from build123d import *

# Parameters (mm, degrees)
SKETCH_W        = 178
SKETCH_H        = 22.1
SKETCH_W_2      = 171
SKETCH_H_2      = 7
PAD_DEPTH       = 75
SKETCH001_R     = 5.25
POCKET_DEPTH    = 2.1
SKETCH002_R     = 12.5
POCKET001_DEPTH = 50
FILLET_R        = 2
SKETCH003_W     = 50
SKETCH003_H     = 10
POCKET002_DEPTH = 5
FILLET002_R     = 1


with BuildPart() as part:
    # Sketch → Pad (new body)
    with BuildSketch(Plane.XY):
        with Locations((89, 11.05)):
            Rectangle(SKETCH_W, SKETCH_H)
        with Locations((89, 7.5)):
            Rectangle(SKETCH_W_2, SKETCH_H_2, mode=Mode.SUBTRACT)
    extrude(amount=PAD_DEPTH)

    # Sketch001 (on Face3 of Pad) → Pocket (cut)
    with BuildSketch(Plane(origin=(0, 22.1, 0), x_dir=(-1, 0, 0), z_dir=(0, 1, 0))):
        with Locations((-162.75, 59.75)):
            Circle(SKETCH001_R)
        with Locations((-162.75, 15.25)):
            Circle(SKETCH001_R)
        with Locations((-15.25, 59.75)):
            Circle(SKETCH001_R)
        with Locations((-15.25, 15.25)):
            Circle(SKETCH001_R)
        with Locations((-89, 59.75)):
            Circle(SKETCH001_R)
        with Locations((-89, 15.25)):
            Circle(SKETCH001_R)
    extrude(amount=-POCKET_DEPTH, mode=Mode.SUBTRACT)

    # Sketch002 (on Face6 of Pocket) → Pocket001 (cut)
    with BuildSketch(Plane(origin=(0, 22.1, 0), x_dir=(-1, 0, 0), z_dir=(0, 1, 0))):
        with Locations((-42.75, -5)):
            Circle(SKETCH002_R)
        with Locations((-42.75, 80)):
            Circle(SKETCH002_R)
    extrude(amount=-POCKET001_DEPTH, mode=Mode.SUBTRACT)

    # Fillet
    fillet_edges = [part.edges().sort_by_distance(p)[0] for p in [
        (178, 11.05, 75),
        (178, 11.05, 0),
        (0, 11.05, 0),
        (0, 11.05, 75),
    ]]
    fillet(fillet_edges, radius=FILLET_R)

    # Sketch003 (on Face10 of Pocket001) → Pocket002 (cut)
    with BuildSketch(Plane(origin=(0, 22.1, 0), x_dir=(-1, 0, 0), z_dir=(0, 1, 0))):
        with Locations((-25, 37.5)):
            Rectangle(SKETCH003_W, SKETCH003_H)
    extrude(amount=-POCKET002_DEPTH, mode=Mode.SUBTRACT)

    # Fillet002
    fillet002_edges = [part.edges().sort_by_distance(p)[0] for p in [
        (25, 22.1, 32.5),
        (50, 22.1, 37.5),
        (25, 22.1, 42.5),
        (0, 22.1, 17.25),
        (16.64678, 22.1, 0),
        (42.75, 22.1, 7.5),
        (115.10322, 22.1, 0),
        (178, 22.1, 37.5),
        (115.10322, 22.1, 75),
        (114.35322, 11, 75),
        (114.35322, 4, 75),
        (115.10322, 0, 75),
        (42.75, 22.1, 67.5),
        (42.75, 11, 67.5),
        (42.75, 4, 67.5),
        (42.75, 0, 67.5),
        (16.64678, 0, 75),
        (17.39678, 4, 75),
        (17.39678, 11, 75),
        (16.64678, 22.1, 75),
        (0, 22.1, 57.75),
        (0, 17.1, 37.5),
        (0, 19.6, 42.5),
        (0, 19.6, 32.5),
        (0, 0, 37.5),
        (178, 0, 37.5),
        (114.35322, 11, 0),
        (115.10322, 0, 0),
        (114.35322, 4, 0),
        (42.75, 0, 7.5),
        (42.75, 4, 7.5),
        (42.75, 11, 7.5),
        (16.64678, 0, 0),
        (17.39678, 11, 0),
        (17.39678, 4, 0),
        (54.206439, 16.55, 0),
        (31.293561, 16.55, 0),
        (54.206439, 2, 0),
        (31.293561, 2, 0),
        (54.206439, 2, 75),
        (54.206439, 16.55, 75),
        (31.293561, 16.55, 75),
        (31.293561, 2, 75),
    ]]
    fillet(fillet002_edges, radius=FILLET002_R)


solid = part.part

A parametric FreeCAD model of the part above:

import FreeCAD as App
import Part
import Sketcher

V = App.Vector


def edges_at(feature, points):
    """Names of the edges that pass closest to the given points."""
    edges = feature.Shape.Edges
    near = lambda p: min(range(len(edges)), key=lambda i: edges[i].distToShape(Part.Vertex(*p))[0])
    return sorted({f"Edge{near(p) + 1}" for p in points})

doc = App.newDocument("Part")
body = doc.addObject("PartDesign::Body", "Body")

sketch1 = doc.addObject("Sketcher::SketchObject", "Sketch")
body.addObject(sketch1)
sketch1.AttachmentSupport = (doc.XY_Plane, [""])
sketch1.MapMode = "FlatFace"
sketch1.addGeometry(Part.LineSegment(V(0, 22, 0), V(0, 0, 0)), False)
sketch1.addGeometry(Part.LineSegment(V(0, 0, 0), V(178, 0, 0)), False)
sketch1.addGeometry(Part.LineSegment(V(178, 0, 0), V(178, 22, 0)), False)
sketch1.addGeometry(Part.LineSegment(V(178, 22, 0), V(0, 22, 0)), False)
sketch1.addGeometry(Part.LineSegment(V(174, 4, 0), V(4, 4, 0)), False)
sketch1.addGeometry(Part.LineSegment(V(4, 4, 0), V(4, 11, 0)), False)
sketch1.addGeometry(Part.LineSegment(V(4, 11, 0), V(174, 11, 0)), False)
sketch1.addGeometry(Part.LineSegment(V(174, 11, 0), V(174, 4, 0)), False)
sketch1.addConstraint(Sketcher.Constraint("Coincident", 0, 2, 1, 1))
sketch1.addConstraint(Sketcher.Constraint("Coincident", 1, 2, 2, 1))
sketch1.addConstraint(Sketcher.Constraint("Coincident", 2, 2, 3, 1))
sketch1.addConstraint(Sketcher.Constraint("Coincident", 3, 2, 0, 1))
sketch1.addConstraint(Sketcher.Constraint("Coincident", 4, 2, 5, 1))
sketch1.addConstraint(Sketcher.Constraint("Coincident", 5, 2, 6, 1))
sketch1.addConstraint(Sketcher.Constraint("Coincident", 6, 2, 7, 1))
sketch1.addConstraint(Sketcher.Constraint("Coincident", 7, 2, 4, 1))
sketch1.addConstraint(Sketcher.Constraint("Vertical", 0))
sketch1.addConstraint(Sketcher.Constraint("Horizontal", 1))
sketch1.addConstraint(Sketcher.Constraint("Vertical", 2))
sketch1.addConstraint(Sketcher.Constraint("Horizontal", 3))
sketch1.addConstraint(Sketcher.Constraint("Horizontal", 4))
sketch1.addConstraint(Sketcher.Constraint("Vertical", 5))
sketch1.addConstraint(Sketcher.Constraint("Horizontal", 6))
sketch1.addConstraint(Sketcher.Constraint("Vertical", 7))
sketch1.addConstraint(Sketcher.Constraint("Coincident", 0, 2, -1, 1))
sketch1.addConstraint(Sketcher.Constraint("DistanceX", 1, 1, 1, 2, 178.0))
sketch1.addConstraint(Sketcher.Constraint("DistanceX", 4, 2, 4, 1, 171.0))
sketch1.addConstraint(Sketcher.Constraint("DistanceY", 5, 1, 5, 2, 7.0))
sketch1.addConstraint(Sketcher.Constraint("DistanceY", 0, 2, 0, 1, 22.1))
sketch1.addConstraint(Sketcher.Constraint("DistanceY", -1, 1, 4, 2, 4.0))
sketch1.addConstraint(Sketcher.Constraint("DistanceX", -1, 1, 4, 2, 3.5))
pad1 = doc.addObject("PartDesign::Pad", "Pad")
body.addObject(pad1)
pad1.Profile = sketch1
pad1.Length = 75

sketch2 = doc.addObject("Sketcher::SketchObject", "Sketch001")
body.addObject(sketch2)
sketch2.AttachmentSupport = (doc.XZ_Plane, [""])
sketch2.MapMode = "FlatFace"
sketch2.AttachmentOffset = App.Placement(V(0, 0, -22.1), App.Rotation())
sketch2.addGeometry(Part.Circle(V(163, 60, 0), V(0, 0, 1), 5), False)
sketch2.addGeometry(Part.Circle(V(163, 15, 0), V(0, 0, 1), 5), False)
sketch2.addGeometry(Part.Circle(V(15, 60, 0), V(0, 0, 1), 5), False)
sketch2.addGeometry(Part.Circle(V(15, 15, 0), V(0, 0, 1), 5), False)
sketch2.addGeometry(Part.Circle(V(89, 60, 0), V(0, 0, 1), 5), False)
sketch2.addGeometry(Part.Circle(V(89, 15, 0), V(0, 0, 1), 5), False)
sketch2.addConstraint(Sketcher.Constraint("Equal", 0, 1))
sketch2.addConstraint(Sketcher.Constraint("Equal", 1, 2))
sketch2.addConstraint(Sketcher.Constraint("Equal", 2, 3))
sketch2.addConstraint(Sketcher.Constraint("Equal", 3, 4))
sketch2.addConstraint(Sketcher.Constraint("Equal", 4, 5))
sketch2.addConstraint(Sketcher.Constraint("Horizontal", 0, 3, 2, 3))
sketch2.addConstraint(Sketcher.Constraint("Horizontal", 1, 3, 3, 3))
sketch2.addConstraint(Sketcher.Constraint("Horizontal", 2, 3, 4, 3))
sketch2.addConstraint(Sketcher.Constraint("Horizontal", 3, 3, 5, 3))
sketch2.addConstraint(Sketcher.Constraint("Vertical", 0, 3, 1, 3))
sketch2.addConstraint(Sketcher.Constraint("Vertical", 2, 3, 3, 3))
sketch2.addConstraint(Sketcher.Constraint("Vertical", 4, 3, 5, 3))
sketch2.addConstraint(Sketcher.Constraint("Diameter", 0, 10.5))
sketch2.addConstraint(Sketcher.Constraint("DistanceX", -1, 1, 4, 3, 89.0))
sketch2.addConstraint(Sketcher.Constraint("DistanceY", 1, 3, 0, 3, 44.5))
sketch2.addConstraint(Sketcher.Constraint("DistanceX", 2, 3, 0, 3, 147.5))
sketch2.addConstraint(Sketcher.Constraint("DistanceX", -1, 1, 0, 3, 162.75))
sketch2.addConstraint(Sketcher.Constraint("DistanceY", -1, 1, 0, 3, 59.75))
pocket1 = doc.addObject("PartDesign::Pocket", "Pocket")
body.addObject(pocket1)
pocket1.Profile = sketch2
pocket1.Length = 2.1
pocket1.Reversed = True

sketch3 = doc.addObject("Sketcher::SketchObject", "Sketch002")
body.addObject(sketch3)
sketch3.AttachmentSupport = (doc.XZ_Plane, [""])
sketch3.MapMode = "FlatFace"
sketch3.AttachmentOffset = App.Placement(V(0, 0, -22.1), App.Rotation())
sketch3.addGeometry(Part.Circle(V(43, -5, 0), V(0, 0, 1), 12), False)
sketch3.addGeometry(Part.Circle(V(43, 80, 0), V(0, 0, 1), 12), False)
sketch3.addConstraint(Sketcher.Constraint("Equal", 0, 1))
sketch3.addConstraint(Sketcher.Constraint("Vertical", 0, 3, 1, 3))
sketch3.addConstraint(Sketcher.Constraint("Diameter", 0, 25.0))
sketch3.addConstraint(Sketcher.Constraint("DistanceY", 0, 3, -1, 1, 5.0))
sketch3.addConstraint(Sketcher.Constraint("DistanceY", -1, 1, 1, 3, 80.0))
sketch3.addConstraint(Sketcher.Constraint("DistanceX", -1, 1, 0, 3, 42.75))
pocket2 = doc.addObject("PartDesign::Pocket", "Pocket001")
body.addObject(pocket2)
pocket2.Profile = sketch3
pocket2.Length = 50
pocket2.Reversed = True
doc.recompute()

fillet = doc.addObject("PartDesign::Fillet", "Fillet")
body.addObject(fillet)
fillet.Base = (pocket2, edges_at(pocket2, [
    (178, 11.05, 75),
    (178, 11.05, 0),
    (0, 11.05, 0),
    (0, 11.05, 75),
]))
fillet.Radius = 2

sketch4 = doc.addObject("Sketcher::SketchObject", "Sketch003")
body.addObject(sketch4)
sketch4.AttachmentSupport = (doc.XZ_Plane, [""])
sketch4.MapMode = "FlatFace"
sketch4.AttachmentOffset = App.Placement(V(0, 0, -22.1), App.Rotation())
sketch4.addGeometry(Part.LineSegment(V(50, 42, 0), V(50, 32, 0)), False)
sketch4.addGeometry(Part.LineSegment(V(50, 32, 0), V(0, 32, 0)), False)
sketch4.addGeometry(Part.LineSegment(V(0, 32, 0), V(0, 42, 0)), False)
sketch4.addGeometry(Part.LineSegment(V(0, 42, 0), V(50, 42, 0)), False)
sketch4.addConstraint(Sketcher.Constraint("Coincident", 0, 2, 1, 1))
sketch4.addConstraint(Sketcher.Constraint("Coincident", 1, 2, 2, 1))
sketch4.addConstraint(Sketcher.Constraint("Coincident", 2, 2, 3, 1))
sketch4.addConstraint(Sketcher.Constraint("Coincident", 3, 2, 0, 1))
sketch4.addConstraint(Sketcher.Constraint("Vertical", 0))
sketch4.addConstraint(Sketcher.Constraint("Horizontal", 1))
sketch4.addConstraint(Sketcher.Constraint("Vertical", 2))
sketch4.addConstraint(Sketcher.Constraint("Horizontal", 3))
sketch4.addConstraint(Sketcher.Constraint("PointOnObject", 1, 2, -2))
sketch4.addConstraint(Sketcher.Constraint("DistanceX", 1, 2, 1, 1, 50.0))
sketch4.addConstraint(Sketcher.Constraint("DistanceY", 0, 2, 0, 1, 10.0))
sketch4.addConstraint(Sketcher.Constraint("DistanceY", -1, 1, 0, 2, 32.5))
pocket3 = doc.addObject("PartDesign::Pocket", "Pocket002")
body.addObject(pocket3)
pocket3.Profile = sketch4
pocket3.Length = 5
pocket3.Reversed = True
doc.recompute()

fillet2 = doc.addObject("PartDesign::Fillet", "Fillet001")
body.addObject(fillet2)
fillet2.Base = (pocket3, edges_at(pocket3, [
    (25, 22.1, 32.5),
    (50, 22.1, 37.5),
    (25, 22.1, 42.5),
    (0, 22.1, 17.25),
    (16.647, 22.1, 0),
    (42.75, 22.1, 7.5),
    (115.103, 22.1, 0),
    (178, 22.1, 37.5),
    (115.103, 22.1, 75),
    (114.353, 11, 75),
    (114.353, 4, 75),
    (115.103, 0, 75),
    (42.75, 22.1, 67.5),
    (42.75, 11, 67.5),
    (42.75, 4, 67.5),
    (42.75, 0, 67.5),
    (16.647, 0, 75),
    (17.397, 4, 75),
    (17.397, 11, 75),
    (16.647, 22.1, 75),
    (0, 22.1, 57.75),
    (0, 17.1, 37.5),
    (0, 19.6, 42.5),
    (0, 19.6, 32.5),
    (0, 0, 37.5),
    (178, 0, 37.5),
    (114.353, 11, 0),
    (115.103, 0, 0),
    (114.353, 4, 0),
    (42.75, 0, 7.5),
    (42.75, 4, 7.5),
    (42.75, 11, 7.5),
    (16.647, 0, 0),
    (17.397, 11, 0),
    (17.397, 4, 0),
    (54.206, 16.55, 0),
    (31.294, 16.55, 0),
    (54.206, 2, 0),
    (31.294, 2, 0),
    (54.206, 2, 75),
    (54.206, 16.55, 75),
    (31.294, 16.55, 75),
    (31.294, 2, 75),
]))
fillet2.Radius = 1

doc.recompute()
